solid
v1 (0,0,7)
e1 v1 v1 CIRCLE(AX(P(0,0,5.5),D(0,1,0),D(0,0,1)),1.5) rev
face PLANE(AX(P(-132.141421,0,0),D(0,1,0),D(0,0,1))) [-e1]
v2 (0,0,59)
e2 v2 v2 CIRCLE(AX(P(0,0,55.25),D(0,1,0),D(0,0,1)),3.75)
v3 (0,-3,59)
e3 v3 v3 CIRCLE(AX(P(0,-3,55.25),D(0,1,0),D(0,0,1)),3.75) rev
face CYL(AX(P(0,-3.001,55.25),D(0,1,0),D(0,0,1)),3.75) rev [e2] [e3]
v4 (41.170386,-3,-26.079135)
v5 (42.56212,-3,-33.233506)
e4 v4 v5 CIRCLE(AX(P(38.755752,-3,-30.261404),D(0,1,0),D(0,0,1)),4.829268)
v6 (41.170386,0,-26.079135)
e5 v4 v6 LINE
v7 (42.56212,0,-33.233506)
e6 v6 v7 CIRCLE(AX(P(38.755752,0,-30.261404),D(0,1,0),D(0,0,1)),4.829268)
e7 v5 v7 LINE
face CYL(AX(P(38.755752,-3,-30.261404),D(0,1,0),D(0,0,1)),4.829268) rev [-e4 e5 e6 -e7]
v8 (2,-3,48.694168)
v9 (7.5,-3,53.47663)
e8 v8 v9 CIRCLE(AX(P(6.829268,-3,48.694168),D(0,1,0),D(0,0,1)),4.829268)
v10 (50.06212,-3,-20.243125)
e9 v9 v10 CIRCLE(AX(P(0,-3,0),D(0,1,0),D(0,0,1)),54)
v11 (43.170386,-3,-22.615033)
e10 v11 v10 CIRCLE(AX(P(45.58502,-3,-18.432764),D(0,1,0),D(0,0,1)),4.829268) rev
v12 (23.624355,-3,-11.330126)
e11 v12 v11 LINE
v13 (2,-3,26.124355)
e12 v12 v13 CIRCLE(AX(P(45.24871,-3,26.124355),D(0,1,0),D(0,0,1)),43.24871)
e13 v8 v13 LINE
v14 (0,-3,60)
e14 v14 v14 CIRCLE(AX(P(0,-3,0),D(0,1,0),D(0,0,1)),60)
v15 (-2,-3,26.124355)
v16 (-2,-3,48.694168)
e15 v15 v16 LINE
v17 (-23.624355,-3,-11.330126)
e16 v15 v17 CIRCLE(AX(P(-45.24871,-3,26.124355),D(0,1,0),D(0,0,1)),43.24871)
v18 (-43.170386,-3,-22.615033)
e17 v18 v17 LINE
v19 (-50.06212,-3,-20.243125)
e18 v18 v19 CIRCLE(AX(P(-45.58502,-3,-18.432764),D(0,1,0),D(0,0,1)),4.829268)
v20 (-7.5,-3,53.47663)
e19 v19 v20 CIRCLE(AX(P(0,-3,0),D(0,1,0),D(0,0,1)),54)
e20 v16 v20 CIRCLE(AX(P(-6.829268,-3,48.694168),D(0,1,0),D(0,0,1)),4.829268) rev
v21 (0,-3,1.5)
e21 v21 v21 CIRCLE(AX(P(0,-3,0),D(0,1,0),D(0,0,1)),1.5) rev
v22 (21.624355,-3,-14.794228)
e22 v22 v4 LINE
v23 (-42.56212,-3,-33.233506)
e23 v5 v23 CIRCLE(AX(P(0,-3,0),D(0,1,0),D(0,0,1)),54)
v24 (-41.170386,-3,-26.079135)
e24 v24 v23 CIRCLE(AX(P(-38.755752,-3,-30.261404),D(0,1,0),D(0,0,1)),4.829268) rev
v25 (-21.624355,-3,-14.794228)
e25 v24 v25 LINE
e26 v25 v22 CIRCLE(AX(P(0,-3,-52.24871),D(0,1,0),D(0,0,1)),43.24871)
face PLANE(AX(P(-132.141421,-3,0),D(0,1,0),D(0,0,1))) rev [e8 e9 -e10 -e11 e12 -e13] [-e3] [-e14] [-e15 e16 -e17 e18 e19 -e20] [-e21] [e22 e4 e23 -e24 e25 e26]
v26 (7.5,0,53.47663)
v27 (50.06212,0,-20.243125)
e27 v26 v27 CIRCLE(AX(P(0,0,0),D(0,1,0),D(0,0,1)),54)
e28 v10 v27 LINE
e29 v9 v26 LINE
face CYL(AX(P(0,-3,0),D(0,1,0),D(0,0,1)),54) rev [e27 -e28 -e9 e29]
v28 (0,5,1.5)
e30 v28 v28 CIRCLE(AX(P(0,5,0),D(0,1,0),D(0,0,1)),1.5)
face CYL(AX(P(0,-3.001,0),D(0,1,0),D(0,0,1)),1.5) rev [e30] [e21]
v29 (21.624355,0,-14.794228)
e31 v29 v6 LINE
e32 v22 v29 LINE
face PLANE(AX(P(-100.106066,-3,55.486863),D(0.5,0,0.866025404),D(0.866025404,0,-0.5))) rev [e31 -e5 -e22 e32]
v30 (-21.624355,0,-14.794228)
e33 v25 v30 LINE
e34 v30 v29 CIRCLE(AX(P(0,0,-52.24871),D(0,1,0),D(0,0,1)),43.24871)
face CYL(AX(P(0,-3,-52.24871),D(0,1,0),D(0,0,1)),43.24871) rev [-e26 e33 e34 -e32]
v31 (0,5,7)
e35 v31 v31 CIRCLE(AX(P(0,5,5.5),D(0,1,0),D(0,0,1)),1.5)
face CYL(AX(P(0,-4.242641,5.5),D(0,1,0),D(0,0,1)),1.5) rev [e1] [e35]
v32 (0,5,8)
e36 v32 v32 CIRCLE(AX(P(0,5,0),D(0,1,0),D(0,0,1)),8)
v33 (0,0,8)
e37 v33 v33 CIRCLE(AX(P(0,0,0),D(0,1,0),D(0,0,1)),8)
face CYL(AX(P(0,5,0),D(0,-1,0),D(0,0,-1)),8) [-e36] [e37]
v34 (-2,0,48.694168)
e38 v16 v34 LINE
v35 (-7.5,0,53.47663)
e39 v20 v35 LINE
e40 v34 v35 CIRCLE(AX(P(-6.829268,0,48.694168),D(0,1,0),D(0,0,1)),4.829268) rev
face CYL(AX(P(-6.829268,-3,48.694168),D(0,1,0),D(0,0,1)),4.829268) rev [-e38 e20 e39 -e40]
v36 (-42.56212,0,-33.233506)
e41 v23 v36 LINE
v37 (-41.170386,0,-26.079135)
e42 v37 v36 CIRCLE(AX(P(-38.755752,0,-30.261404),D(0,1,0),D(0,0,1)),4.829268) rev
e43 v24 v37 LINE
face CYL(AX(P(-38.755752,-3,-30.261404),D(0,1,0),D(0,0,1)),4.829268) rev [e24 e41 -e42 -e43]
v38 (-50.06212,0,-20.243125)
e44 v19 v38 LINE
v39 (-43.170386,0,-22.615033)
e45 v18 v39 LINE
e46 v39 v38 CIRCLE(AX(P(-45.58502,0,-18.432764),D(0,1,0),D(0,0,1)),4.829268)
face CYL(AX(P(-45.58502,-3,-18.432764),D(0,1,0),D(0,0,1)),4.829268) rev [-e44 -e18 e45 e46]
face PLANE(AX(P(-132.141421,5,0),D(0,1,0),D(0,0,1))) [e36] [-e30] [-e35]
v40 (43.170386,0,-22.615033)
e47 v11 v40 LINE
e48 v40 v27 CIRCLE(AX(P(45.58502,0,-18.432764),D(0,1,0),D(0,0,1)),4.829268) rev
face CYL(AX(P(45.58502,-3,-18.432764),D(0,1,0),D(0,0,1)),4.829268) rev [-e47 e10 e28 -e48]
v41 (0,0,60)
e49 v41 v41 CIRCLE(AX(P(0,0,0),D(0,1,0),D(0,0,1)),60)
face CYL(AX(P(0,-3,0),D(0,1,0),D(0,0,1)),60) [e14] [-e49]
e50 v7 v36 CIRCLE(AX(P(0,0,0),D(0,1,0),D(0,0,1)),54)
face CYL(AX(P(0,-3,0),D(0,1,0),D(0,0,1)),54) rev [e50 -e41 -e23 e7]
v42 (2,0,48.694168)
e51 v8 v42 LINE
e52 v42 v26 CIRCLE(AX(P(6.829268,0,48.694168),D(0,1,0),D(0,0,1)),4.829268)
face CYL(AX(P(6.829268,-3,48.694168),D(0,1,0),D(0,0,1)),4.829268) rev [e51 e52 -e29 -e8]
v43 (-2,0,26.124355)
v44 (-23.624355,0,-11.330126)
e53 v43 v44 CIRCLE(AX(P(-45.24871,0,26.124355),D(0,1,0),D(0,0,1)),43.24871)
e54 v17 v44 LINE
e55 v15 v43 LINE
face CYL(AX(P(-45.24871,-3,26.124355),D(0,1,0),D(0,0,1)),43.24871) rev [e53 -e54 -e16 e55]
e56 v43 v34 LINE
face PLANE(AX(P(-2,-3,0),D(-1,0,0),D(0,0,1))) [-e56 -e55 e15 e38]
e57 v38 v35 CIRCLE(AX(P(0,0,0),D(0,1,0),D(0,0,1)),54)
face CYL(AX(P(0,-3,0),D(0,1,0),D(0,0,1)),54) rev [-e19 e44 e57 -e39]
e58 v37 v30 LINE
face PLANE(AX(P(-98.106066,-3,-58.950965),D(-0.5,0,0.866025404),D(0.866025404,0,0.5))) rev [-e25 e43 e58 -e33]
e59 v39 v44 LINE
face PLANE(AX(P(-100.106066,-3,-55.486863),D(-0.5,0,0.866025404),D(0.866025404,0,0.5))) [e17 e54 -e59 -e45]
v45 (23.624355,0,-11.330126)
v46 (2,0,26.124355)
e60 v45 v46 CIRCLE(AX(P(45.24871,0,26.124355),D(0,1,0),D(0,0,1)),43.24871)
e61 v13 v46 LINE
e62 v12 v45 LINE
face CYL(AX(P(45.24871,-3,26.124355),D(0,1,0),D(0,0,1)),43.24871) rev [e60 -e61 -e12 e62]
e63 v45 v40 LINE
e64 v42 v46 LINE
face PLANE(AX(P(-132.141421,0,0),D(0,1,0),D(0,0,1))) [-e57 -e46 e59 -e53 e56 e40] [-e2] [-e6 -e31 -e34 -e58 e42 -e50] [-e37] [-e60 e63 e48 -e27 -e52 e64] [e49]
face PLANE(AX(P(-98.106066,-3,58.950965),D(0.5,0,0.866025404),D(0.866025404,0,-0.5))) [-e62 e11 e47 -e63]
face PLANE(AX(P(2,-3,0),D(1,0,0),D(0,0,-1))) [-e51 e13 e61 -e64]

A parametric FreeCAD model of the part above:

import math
import FreeCAD as App
import Part
import Sketcher
Q = App.Units.Quantity

doc = App.newDocument("Part")
params = doc.addObject("Spreadsheet::Sheet", "Params")
for row, (alias, value) in enumerate([
    ("sketch1_diameter", "120 mm"),
    ("sketch1_radius", "54 mm"),
    ("pad1_length", "3 mm"),
    ("sketch2_diameter", "16 mm"),
    ("pad2_length", "5 mm"),
    ("sketch3_diameter", "3 mm"),
    ("sketch4_diameter", "7.5 mm"),
    ("sketch5_diameter", "3 mm"),
    ("pocket3_length", "5 mm"),
], start=1):
    params.set(f"A{row}", alias)
    params.set(f"B{row}", "=" + value)
    params.setAlias(f"B{row}", alias)

body = doc.addObject("PartDesign::Body", "Body")

sketch1 = doc.addObject("Sketcher::SketchObject", "Sketch")
body.addObject(sketch1)
sketch1.AttachmentSupport = (doc.XZ_Plane, [""])
sketch1.MapMode = "FlatFace"
sketch1.addGeometry(Part.Circle(App.Vector(0, 0, 0), App.Vector(0, 0, 1), 60), False)
sketch1.addGeometry(Part.ArcOfCircle(Part.Circle(App.Vector(0, 0, 0), App.Vector(0, 0, 1), 54), math.radians(97.983556), math.radians(202.016444)), False)
sketch1.addGeometry(Part.ArcOfCircle(Part.Circle(App.Vector(-45.58502, -18.432764, 0), App.Vector(0, 0, 1), 4.829268), math.radians(-157.983556), math.radians(-60)), False)
sketch1.addGeometry(Part.LineSegment(App.Vector(-43.170386, -22.615033, 0), App.Vector(-23.624355, -11.330126, 0)), False)
sketch1.addGeometry(Part.ArcOfCircle(Part.Circle(App.Vector(-45.24871, 26.124355, 0), App.Vector(0, 0, 1), 43.24871), math.radians(-60), math.radians(-30)), False)
sketch1.addGeometry(Part.ArcOfCircle(Part.Circle(App.Vector(-45.24871, 26.124355, 0), App.Vector(0, 0, 1), 43.24871), math.radians(-30), math.radians(0)), False)
sketch1.addGeometry(Part.LineSegment(App.Vector(-2, 26.124355, 0), App.Vector(-2, 48.694168, 0)), False)
sketch1.addGeometry(Part.ArcOfCircle(Part.Circle(App.Vector(-6.829268, 48.694168, 0), App.Vector(0, 0, 1), 4.829268), math.radians(0), math.radians(97.983556)), False)
sketch1.addGeometry(Part.ArcOfCircle(Part.Circle(App.Vector(0, 0, 0), App.Vector(0, 0, 1), 54), math.radians(-22.016444), math.radians(82.016444)), False)
sketch1.addGeometry(Part.ArcOfCircle(Part.Circle(App.Vector(6.829268, 48.694168, 0), App.Vector(0, 0, 1), 4.829268), math.radians(82.016444), math.radians(180)), False)
sketch1.addGeometry(Part.LineSegment(App.Vector(2, 48.694168, 0), App.Vector(2, 26.124355, 0)), False)
sketch1.addGeometry(Part.ArcOfCircle(Part.Circle(App.Vector(45.24871, 26.124355, 0), App.Vector(0, 0, 1), 43.24871), math.radians(-180), math.radians(-150)), False)
sketch1.addGeometry(Part.ArcOfCircle(Part.Circle(App.Vector(45.24871, 26.124355, 0), App.Vector(0, 0, 1), 43.24871), math.radians(-150), math.radians(-120)), False)
sketch1.addGeometry(Part.LineSegment(App.Vector(23.624355, -11.330126, 0), App.Vector(43.170386, -22.615033, 0)), False)
sketch1.addGeometry(Part.ArcOfCircle(Part.Circle(App.Vector(45.58502, -18.432764, 0), App.Vector(0, 0, 1), 4.829268), math.radians(-120), math.radians(-22.016444)), False)
sketch1.addGeometry(Part.ArcOfCircle(Part.Circle(App.Vector(0, 0, 0), App.Vector(0, 0, 1), 54), math.radians(-142.016444), math.radians(-37.983556)), False)
sketch1.addGeometry(Part.ArcOfCircle(Part.Circle(App.Vector(38.755752, -30.261404, 0), App.Vector(0, 0, 1), 4.829268), math.radians(-37.983556), math.radians(60)), False)
sketch1.addGeometry(Part.LineSegment(App.Vector(41.170386, -26.079135, 0), App.Vector(21.624355, -14.794228, 0)), False)
sketch1.addGeometry(Part.ArcOfCircle(Part.Circle(App.Vector(0, -52.24871, 0), App.Vector(0, 0, 1), 43.24871), math.radians(60), math.radians(90)), False)
sketch1.addGeometry(Part.ArcOfCircle(Part.Circle(App.Vector(0, -52.24871, 0), App.Vector(0, 0, 1), 43.24871), math.radians(90), math.radians(120)), False)
sketch1.addGeometry(Part.LineSegment(App.Vector(-21.624355, -14.794228, 0), App.Vector(-41.170386, -26.079135, 0)), False)
sketch1.addGeometry(Part.ArcOfCircle(Part.Circle(App.Vector(-38.755752, -30.261404, 0), App.Vector(0, 0, 1), 4.829268), math.radians(120), math.radians(217.983556)), False)
sketch1.addConstraint(Sketcher.Constraint("Tangent", 1, 2, 2, 1))
sketch1.addConstraint(Sketcher.Constraint("Tangent", 2, 2, 3, 1))
sketch1.addConstraint(Sketcher.Constraint("Tangent", 3, 2, 4, 1))
sketch1.addConstraint(Sketcher.Constraint("Tangent", 4, 2, 5, 1))
sketch1.addConstraint(Sketcher.Constraint("Tangent", 5, 2, 6, 1))
sketch1.addConstraint(Sketcher.Constraint("Tangent", 6, 2, 7, 1))
sketch1.addConstraint(Sketcher.Constraint("Tangent", 7, 2, 1, 1))
sketch1.addConstraint(Sketcher.Constraint("Tangent", 8, 2, 9, 1))
sketch1.addConstraint(Sketcher.Constraint("Tangent", 9, 2, 10, 1))
sketch1.addConstraint(Sketcher.Constraint("Tangent", 10, 2, 11, 1))
sketch1.addConstraint(Sketcher.Constraint("Tangent", 11, 2, 12, 1))
sketch1.addConstraint(Sketcher.Constraint("Tangent", 12, 2, 13, 1))
sketch1.addConstraint(Sketcher.Constraint("Tangent", 13, 2, 14, 1))
sketch1.addConstraint(Sketcher.Constraint("Tangent", 14, 2, 8, 1))
sketch1.addConstraint(Sketcher.Constraint("Tangent", 15, 2, 16, 1))
sketch1.addConstraint(Sketcher.Constraint("Tangent", 16, 2, 17, 1))
sketch1.addConstraint(Sketcher.Constraint("Tangent", 17, 2, 18, 1))
sketch1.addConstraint(Sketcher.Constraint("Tangent", 18, 2, 19, 1))
sketch1.addConstraint(Sketcher.Constraint("Tangent", 19, 2, 20, 1))
sketch1.addConstraint(Sketcher.Constraint("Tangent", 20, 2, 21, 1))
sketch1.addConstraint(Sketcher.Constraint("Tangent", 21, 2, 15, 1))
sketch1.addConstraint(Sketcher.Constraint("Vertical", 6))
sketch1.addConstraint(Sketcher.Constraint("Vertical", 10))
sketch1.addConstraint(Sketcher.Constraint("Coincident", 0, 3, -1, 1))
sketch1.addConstraint(Sketcher.Constraint("Coincident", 1, 3, -1, 1))
sketch1.addConstraint(Sketcher.Constraint("Coincident", 8, 3, -1, 1))
sketch1.addConstraint(Sketcher.Constraint("Coincident", 15, 3, -1, 1))
sketch1.addConstraint(Sketcher.Constraint("Equal", 4, 5))
sketch1.addConstraint(Sketcher.Constraint("Equal", 2, 7))
sketch1.addConstraint(Sketcher.Constraint("Equal", 1, 8))
sketch1.addConstraint(Sketcher.Constraint("Equal", 7, 9))
sketch1.addConstraint(Sketcher.Constraint("Equal", 5, 11))
sketch1.addConstraint(Sketcher.Constraint("Equal", 11, 12))
sketch1.addConstraint(Sketcher.Constraint("Equal", 9, 14))
sketch1.addConstraint(Sketcher.Constraint("Equal", 8, 15))
sketch1.addConstraint(Sketcher.Constraint("Equal", 14, 16))
sketch1.addConstraint(Sketcher.Constraint("Equal", 12, 18))
sketch1.addConstraint(Sketcher.Constraint("Equal", 18, 19))
sketch1.addConstraint(Sketcher.Constraint("Equal", 16, 21))
sketch1.addConstraint(Sketcher.Constraint("Symmetric", 4, 3, 11, 3, -2))
sketch1.addConstraint(Sketcher.Constraint("Symmetric", 17, 2, 19, 2, -2))
sketch1.addConstraint(Sketcher.Constraint("PointOnObject", 18, 2, -2))
sketch1.addConstraint(Sketcher.Constraint("Parallel", 13, 17))
sketch1.addConstraint(Sketcher.Constraint("Parallel", 3, 20))
sketch1.addConstraint(Sketcher.Constraint("Horizontal", 4, 2, 11, 2))
sketch1.addConstraint(Sketcher.Constraint("Equal", 13, 17))
sketch1.addConstraint(Sketcher.Constraint("Diameter", 0, Q("120 mm")))
sketch1.addConstraint(Sketcher.Constraint("Radius", 1, Q("54 mm")))
sketch1.addConstraint(Sketcher.Constraint("Angle", 3, Q("30 deg")))
sketch1.addConstraint(Sketcher.Constraint("DistanceX", 5, 2, -1, 1, Q("2 mm")))
sketch1.addConstraint(Sketcher.Constraint("DistanceY", 18, 2, -1, 1, Q("9 mm")))
sketch1.addConstraint(Sketcher.Constraint("DistanceX", 7, 2, 8, 2, Q("15 mm")))
sketch1.addConstraint(Sketcher.Constraint("DistanceY", -1, 1, 4, 2, Q("4.5 mm")))
sketch1.addConstraint(Sketcher.Constraint("Radius", 4, Q("43.24871 mm")))
sketch1.setExpression("Constraints[46]", "Params.sketch1_diameter")
sketch1.setExpression("Constraints[47]", "Params.sketch1_radius")
pad1 = doc.addObject("PartDesign::Pad", "Pad")
body.addObject(pad1)
pad1.Profile = sketch1
pad1.setExpression("Length", "Params.pad1_length")

sketch2 = doc.addObject("Sketcher::SketchObject", "Sketch001")
body.addObject(sketch2)
sketch2.AttachmentSupport = (doc.XZ_Plane, [""])
sketch2.MapMode = "FlatFace"
sketch2.addGeometry(Part.Circle(App.Vector(0, 0, 0), App.Vector(0, 0, 1), 8), False)
sketch2.addConstraint(Sketcher.Constraint("Coincident", 0, 3, -1, 1))
sketch2.addConstraint(Sketcher.Constraint("Diameter", 0, Q("16 mm")))
sketch2.setExpression("Constraints[1]", "Params.sketch2_diameter")
pad2 = doc.addObject("PartDesign::Pad", "Pad001")
body.addObject(pad2)
pad2.Profile = sketch2
pad2.setExpression("Length", "Params.pad2_length")
pad2.Reversed = True

sketch3 = doc.addObject("Sketcher::SketchObject", "Sketch002")
body.addObject(sketch3)
sketch3.AttachmentSupport = (doc.XZ_Plane, [""])
sketch3.MapMode = "FlatFace"
sketch3.AttachmentOffset = App.Placement(App.Vector(0, 0, -5), App.Rotation())
sketch3.addGeometry(Part.Circle(App.Vector(0, 0, 0), App.Vector(0, 0, 1), 1.5), False)
sketch3.addConstraint(Sketcher.Constraint("Coincident", 0, 3, -1, 1))
sketch3.addConstraint(Sketcher.Constraint("Diameter", 0, Q("3 mm")))
sketch3.setExpression("Constraints[1]", "Params.sketch3_diameter")
pocket1 = doc.addObject("PartDesign::Pocket", "Pocket")
body.addObject(pocket1)
pocket1.Profile = sketch3
pocket1.Type = "UpToFirst"
pocket1.Reversed = True

sketch4 = doc.addObject("Sketcher::SketchObject", "Sketch003")
body.addObject(sketch4)
sketch4.AttachmentSupport = (doc.XZ_Plane, [""])
sketch4.MapMode = "FlatFace"
sketch4.addGeometry(Part.Circle(App.Vector(0, 55.25, 0), App.Vector(0, 0, 1), 3.75), False)
sketch4.addConstraint(Sketcher.Constraint("PointOnObject", 0, 3, -2))
sketch4.addConstraint(Sketcher.Constraint("Diameter", 0, Q("7.5 mm")))
sketch4.addConstraint(Sketcher.Constraint("DistanceY", -1, 1, 0, 3, Q("55.25 mm")))
sketch4.setExpression("Constraints[1]", "Params.sketch4_diameter")
pocket2 = doc.addObject("PartDesign::Pocket", "Pocket001")
body.addObject(pocket2)
pocket2.Profile = sketch4
pocket2.Type = "UpToFirst"
pocket2.Reversed = True

sketch5 = doc.addObject("Sketcher::SketchObject", "Sketch004")
body.addObject(sketch5)
sketch5.AttachmentSupport = (doc.XZ_Plane, [""])
sketch5.MapMode = "FlatFace"
sketch5.AttachmentOffset = App.Placement(App.Vector(0, 0, -5), App.Rotation())
sketch5.addGeometry(Part.Circle(App.Vector(0, 5.5, 0), App.Vector(0, 0, 1), 1.5), False)
sketch5.addConstraint(Sketcher.Constraint("PointOnObject", 0, 3, -2))
sketch5.addConstraint(Sketcher.Constraint("Diameter", 0, Q("3 mm")))
sketch5.addConstraint(Sketcher.Constraint("DistanceY", -1, 1, 0, 3, Q("5.5 mm")))
sketch5.setExpression("Constraints[1]", "Params.sketch5_diameter")
pocket3 = doc.addObject("PartDesign::Pocket", "Pocket002")
body.addObject(pocket3)
pocket3.Profile = sketch5
pocket3.setExpression("Length", "Params.pocket3_length")
pocket3.Reversed = True

doc.recompute()
